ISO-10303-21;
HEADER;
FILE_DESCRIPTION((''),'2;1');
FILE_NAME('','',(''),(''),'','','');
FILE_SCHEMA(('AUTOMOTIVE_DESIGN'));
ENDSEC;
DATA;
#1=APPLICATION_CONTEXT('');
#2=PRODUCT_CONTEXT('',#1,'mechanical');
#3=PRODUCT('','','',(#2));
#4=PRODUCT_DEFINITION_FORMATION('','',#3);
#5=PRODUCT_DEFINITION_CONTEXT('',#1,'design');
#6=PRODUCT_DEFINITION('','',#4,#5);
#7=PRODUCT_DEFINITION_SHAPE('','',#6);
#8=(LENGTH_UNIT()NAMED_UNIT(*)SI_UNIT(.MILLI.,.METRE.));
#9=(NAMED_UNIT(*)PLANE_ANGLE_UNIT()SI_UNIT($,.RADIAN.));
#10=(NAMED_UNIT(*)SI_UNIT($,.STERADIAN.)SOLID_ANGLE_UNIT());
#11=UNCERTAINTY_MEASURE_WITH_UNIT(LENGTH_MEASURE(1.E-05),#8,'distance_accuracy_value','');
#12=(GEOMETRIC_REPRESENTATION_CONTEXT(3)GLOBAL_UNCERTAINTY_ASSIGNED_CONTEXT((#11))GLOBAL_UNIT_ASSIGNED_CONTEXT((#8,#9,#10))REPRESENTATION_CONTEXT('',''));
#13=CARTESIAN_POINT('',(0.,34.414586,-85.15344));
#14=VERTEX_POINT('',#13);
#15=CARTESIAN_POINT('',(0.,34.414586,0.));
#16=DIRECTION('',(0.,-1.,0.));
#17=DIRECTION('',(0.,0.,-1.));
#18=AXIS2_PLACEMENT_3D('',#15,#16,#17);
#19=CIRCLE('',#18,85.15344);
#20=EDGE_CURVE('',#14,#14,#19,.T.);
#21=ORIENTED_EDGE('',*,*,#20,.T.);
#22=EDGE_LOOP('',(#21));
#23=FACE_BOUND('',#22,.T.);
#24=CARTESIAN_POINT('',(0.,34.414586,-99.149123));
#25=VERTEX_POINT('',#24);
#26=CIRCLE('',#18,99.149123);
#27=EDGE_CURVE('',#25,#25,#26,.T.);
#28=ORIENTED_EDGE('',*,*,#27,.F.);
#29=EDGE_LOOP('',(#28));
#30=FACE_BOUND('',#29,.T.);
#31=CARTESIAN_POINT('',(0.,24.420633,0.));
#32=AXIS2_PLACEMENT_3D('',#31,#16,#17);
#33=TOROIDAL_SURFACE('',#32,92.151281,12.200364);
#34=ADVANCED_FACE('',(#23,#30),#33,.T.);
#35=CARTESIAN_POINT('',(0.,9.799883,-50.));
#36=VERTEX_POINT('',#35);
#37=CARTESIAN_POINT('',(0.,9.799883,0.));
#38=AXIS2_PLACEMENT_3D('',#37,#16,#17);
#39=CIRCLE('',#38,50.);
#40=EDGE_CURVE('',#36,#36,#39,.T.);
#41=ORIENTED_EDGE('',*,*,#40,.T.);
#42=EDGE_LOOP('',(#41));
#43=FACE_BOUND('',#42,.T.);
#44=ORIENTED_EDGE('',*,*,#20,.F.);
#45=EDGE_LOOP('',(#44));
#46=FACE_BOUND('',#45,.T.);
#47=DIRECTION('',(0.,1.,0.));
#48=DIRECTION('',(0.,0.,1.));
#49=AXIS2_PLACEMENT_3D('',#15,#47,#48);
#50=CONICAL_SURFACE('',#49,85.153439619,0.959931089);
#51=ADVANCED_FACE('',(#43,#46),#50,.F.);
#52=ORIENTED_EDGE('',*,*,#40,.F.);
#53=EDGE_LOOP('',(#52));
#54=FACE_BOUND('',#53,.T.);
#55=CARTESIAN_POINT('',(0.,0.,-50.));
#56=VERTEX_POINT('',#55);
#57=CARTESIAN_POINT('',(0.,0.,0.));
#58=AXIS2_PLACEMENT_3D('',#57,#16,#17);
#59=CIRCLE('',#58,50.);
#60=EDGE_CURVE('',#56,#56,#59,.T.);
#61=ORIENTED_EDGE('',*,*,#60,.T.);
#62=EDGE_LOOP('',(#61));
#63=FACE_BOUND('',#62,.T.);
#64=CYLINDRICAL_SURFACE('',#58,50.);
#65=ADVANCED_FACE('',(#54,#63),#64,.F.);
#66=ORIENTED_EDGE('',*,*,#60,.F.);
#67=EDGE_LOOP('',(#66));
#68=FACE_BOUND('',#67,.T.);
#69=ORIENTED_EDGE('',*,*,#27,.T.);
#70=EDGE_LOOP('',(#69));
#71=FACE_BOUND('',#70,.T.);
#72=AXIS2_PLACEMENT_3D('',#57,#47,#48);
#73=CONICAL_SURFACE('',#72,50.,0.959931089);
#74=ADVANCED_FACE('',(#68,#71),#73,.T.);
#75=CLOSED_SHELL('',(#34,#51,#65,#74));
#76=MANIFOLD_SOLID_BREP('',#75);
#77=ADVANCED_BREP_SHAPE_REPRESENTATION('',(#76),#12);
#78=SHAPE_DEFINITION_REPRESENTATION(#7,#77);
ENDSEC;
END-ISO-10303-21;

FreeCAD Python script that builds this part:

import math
import FreeCAD as App
import Part
import Sketcher
Q = App.Units.Quantity

doc = App.newDocument("Part")
body = doc.addObject("PartDesign::Body", "Body")

sketch1 = body.newObject("Sketcher::SketchObject", "Sketch")
sketch1.AttachmentSupport = (doc.getObject("XY_Plane"), [""])
sketch1.MapMode = "FlatFace"
sketch1.addGeometry([
    Part.LineSegment(App.Vector(50, 0, 0), App.Vector(99, 34, 0)),
    Part.ArcOfCircle(Part.Circle(App.Vector(92, 24, 0), App.Vector(0, 0, 1), 12), math.radians(55), math.radians(125)),
    Part.LineSegment(App.Vector(85, 34, 0), App.Vector(50, 10, 0)),
    Part.LineSegment(App.Vector(50, 10, 0), App.Vector(50, 0, 0)),
], False)
sketch1.addConstraint([
    Sketcher.Constraint("Coincident", 0, 2, 1, 1),
    Sketcher.Constraint("Tangent", 1, 2, 2, 1),
    Sketcher.Constraint("Coincident", 2, 2, 3, 1),
    Sketcher.Constraint("Coincident", 3, 2, 0, 1),
    Sketcher.Constraint("Vertical", 3),
    Sketcher.Constraint("PointOnObject", 3, 2, -1),
    Sketcher.Constraint("Parallel", 0, 2),
    Sketcher.Constraint("Horizontal", 0, 2, 1, 2),
    Sketcher.Constraint("Angle", 0, Q("35 deg")),
    Sketcher.Constraint("Distance", 0, Q("60 mm")),
    Sketcher.Constraint("DistanceX", -1, 1, 2, 2, Q("50 mm")),
    Sketcher.Constraint("Radius", 1, Q("12.200364 mm")),
])
revolution = body.newObject("PartDesign::Revolution", "Revolution")
revolution.Profile = sketch1
revolution.ReferenceAxis = (sketch1, ["V_Axis"])
revolution.Angle = 360

doc.recompute()
